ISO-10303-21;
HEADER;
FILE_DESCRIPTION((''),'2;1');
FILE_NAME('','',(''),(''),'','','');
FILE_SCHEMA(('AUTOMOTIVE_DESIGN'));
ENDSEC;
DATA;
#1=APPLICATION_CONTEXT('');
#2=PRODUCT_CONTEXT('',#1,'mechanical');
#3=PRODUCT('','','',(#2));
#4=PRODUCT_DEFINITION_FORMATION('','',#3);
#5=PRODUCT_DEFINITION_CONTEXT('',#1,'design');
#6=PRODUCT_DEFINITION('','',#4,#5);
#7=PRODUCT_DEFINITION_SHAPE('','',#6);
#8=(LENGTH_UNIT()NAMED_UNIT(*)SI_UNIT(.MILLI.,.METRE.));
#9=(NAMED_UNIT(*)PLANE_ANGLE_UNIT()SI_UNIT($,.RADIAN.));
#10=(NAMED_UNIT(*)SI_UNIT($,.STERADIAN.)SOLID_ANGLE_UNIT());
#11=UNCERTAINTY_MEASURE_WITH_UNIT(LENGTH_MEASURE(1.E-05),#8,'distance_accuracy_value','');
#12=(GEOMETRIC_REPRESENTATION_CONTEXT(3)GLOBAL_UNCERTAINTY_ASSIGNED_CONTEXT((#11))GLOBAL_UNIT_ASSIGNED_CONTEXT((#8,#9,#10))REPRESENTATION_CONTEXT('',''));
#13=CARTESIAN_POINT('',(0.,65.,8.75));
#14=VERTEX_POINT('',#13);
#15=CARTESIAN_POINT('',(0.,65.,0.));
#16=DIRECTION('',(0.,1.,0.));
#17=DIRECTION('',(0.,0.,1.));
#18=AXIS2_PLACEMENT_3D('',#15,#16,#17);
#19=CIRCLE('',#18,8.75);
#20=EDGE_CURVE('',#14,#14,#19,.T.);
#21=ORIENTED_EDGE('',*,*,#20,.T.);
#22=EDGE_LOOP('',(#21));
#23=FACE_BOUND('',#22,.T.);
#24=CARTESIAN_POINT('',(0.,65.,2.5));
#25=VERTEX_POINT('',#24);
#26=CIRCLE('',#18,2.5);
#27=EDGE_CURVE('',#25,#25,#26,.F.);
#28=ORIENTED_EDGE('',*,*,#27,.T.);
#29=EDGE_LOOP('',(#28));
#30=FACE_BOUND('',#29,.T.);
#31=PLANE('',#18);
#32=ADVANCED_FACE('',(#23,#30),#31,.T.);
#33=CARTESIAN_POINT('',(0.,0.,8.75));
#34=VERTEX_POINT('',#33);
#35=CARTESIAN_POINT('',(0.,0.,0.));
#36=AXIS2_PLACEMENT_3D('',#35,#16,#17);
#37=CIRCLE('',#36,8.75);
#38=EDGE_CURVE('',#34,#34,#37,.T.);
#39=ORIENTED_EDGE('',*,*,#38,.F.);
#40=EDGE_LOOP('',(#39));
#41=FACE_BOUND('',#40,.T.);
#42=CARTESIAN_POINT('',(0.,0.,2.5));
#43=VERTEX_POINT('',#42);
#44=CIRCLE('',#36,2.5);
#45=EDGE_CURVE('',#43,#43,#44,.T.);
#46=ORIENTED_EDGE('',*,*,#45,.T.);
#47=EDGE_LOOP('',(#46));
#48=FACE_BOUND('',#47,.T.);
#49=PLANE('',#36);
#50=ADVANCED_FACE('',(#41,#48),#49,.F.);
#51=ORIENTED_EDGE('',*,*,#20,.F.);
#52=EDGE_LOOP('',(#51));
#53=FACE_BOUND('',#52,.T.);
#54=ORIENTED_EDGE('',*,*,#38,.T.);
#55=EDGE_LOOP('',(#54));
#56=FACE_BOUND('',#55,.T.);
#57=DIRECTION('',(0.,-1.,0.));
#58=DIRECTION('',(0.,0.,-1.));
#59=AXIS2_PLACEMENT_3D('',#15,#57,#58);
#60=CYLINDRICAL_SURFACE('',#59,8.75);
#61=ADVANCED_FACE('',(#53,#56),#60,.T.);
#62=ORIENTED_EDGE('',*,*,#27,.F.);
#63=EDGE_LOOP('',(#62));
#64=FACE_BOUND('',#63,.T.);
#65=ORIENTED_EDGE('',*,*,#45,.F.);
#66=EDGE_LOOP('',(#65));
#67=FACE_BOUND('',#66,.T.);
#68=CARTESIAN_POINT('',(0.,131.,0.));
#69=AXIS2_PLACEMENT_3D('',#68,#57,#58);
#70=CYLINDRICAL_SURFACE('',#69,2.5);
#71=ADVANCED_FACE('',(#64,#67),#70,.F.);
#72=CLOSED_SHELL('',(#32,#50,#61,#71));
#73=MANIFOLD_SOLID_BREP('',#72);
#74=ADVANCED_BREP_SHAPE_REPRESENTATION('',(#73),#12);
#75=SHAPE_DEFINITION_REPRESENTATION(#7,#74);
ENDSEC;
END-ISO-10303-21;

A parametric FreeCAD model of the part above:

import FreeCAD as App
import Part
import Sketcher
from FreeCAD import Vector
Q = App.Units.Quantity

doc = App.newDocument("Part")
body = doc.addObject("PartDesign::Body", "Body")

sketch1 = body.newObject("Sketcher::SketchObject", "Sketch")
sketch1.AttachmentSupport = (doc.getObject("XZ_Plane"), [""])
sketch1.MapMode = "FlatFace"
sketch1.addGeometry(Part.Circle(Vector(0, 0, 0), Vector(0, 0, 1), 9), False)
sketch1.addConstraint([
    Sketcher.Constraint("Coincident", 0, 3, -1, 1),
    Sketcher.Constraint("Diameter", 0, Q("17.5 mm")),
])
pad1 = body.newObject("PartDesign::Pad", "Pad")
pad1.Profile = sketch1
pad1.Length = 65
pad1.Reversed = True

sketch2 = body.newObject("Sketcher::SketchObject", "Sketch001")
sketch2.AttachmentSupport = (doc.getObject("XZ_Plane"), [""])
sketch2.MapMode = "FlatFace"
sketch2.addGeometry(Part.Circle(Vector(0, 0, 0), Vector(0, 0, 1), 2.5), False)
sketch2.addConstraint([
    Sketcher.Constraint("Coincident", 0, 3, -1, 1),
    Sketcher.Constraint("Diameter", 0, Q("5 mm")),
])
pocket1 = body.newObject("PartDesign::Pocket", "Pocket")
pocket1.Profile = sketch2
pocket1.Length = 131

doc.recompute()
